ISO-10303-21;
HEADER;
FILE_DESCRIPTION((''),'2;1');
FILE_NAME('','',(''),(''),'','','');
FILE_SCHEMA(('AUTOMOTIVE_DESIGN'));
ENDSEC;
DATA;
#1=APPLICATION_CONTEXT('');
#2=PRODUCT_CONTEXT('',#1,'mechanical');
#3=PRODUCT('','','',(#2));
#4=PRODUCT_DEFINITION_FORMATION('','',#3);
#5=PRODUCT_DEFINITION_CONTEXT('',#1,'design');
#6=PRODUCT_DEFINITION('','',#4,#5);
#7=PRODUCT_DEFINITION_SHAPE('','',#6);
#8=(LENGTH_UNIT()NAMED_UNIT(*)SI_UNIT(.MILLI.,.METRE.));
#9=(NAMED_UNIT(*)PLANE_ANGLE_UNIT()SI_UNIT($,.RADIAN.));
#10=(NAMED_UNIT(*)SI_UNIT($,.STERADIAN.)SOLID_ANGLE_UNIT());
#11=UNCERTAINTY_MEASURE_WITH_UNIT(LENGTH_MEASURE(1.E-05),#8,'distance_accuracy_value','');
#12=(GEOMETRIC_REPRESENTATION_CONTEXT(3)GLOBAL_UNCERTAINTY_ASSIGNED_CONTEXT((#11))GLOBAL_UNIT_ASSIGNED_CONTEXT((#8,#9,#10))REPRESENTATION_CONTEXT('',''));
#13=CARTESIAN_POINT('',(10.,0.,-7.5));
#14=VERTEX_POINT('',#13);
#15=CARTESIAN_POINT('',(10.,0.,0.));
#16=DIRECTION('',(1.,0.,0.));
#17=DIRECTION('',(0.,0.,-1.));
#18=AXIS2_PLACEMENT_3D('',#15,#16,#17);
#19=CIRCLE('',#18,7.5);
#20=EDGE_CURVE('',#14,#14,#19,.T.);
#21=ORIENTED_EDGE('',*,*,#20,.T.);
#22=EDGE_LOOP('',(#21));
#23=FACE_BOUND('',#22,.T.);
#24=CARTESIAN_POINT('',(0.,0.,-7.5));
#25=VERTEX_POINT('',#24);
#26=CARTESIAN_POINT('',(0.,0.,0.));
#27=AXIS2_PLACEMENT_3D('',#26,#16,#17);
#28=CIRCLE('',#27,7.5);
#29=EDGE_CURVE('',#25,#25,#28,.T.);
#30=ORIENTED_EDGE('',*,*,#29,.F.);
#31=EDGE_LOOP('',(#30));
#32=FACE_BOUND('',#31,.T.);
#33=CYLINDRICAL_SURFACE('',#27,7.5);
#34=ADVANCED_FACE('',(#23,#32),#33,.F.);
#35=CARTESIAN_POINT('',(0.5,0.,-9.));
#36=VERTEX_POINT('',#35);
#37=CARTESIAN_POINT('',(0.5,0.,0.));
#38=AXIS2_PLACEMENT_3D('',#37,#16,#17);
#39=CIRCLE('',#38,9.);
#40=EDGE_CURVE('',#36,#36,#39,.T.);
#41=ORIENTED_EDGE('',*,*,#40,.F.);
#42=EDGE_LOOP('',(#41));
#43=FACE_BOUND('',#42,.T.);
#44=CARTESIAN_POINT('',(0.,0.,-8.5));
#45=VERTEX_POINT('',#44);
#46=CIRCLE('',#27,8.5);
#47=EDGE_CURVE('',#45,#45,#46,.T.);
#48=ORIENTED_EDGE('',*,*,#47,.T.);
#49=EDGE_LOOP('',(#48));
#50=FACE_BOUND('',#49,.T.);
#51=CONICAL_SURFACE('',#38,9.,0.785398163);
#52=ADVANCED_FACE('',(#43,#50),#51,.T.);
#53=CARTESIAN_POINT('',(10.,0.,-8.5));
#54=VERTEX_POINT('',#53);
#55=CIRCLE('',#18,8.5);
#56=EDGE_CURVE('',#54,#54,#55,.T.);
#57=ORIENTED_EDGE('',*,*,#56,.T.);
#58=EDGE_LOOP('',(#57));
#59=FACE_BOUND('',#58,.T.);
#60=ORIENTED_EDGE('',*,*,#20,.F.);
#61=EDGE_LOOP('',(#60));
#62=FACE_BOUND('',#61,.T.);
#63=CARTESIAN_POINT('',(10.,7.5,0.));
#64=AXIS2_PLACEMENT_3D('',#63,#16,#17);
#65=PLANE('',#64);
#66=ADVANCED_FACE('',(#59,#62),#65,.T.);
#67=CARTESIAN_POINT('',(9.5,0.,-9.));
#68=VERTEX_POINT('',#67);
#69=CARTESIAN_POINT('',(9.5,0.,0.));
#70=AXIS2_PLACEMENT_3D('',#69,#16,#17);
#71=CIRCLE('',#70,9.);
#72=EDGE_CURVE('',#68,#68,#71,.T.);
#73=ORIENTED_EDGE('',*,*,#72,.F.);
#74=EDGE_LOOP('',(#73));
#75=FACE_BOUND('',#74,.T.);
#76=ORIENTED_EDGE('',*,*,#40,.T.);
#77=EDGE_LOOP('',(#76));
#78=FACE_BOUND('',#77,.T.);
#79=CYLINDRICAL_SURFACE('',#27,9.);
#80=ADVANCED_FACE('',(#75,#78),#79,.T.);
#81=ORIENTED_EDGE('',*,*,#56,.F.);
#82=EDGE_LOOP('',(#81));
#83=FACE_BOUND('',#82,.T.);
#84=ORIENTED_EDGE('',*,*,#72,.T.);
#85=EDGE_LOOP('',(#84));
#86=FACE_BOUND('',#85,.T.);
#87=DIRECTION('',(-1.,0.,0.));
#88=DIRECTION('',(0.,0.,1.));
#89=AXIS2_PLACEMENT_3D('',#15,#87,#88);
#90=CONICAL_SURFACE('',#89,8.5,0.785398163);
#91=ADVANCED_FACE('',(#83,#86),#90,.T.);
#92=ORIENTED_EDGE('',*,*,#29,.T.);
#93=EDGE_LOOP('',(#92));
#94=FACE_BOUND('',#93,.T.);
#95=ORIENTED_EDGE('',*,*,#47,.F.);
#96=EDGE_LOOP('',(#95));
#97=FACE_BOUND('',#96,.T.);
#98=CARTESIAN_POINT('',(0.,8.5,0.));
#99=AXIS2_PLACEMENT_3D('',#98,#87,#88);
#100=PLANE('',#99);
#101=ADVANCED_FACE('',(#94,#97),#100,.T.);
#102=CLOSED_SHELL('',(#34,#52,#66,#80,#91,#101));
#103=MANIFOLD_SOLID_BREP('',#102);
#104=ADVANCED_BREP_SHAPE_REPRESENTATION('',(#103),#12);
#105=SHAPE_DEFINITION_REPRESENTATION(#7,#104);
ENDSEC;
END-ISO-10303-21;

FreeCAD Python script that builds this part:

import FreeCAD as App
import Part
import Sketcher
from FreeCAD import Vector
Q = App.Units.Quantity

doc = App.newDocument("Part")
body = doc.addObject("PartDesign::Body", "Body")

# Sketch on XY plane
sketch1 = body.newObject("Sketcher::SketchObject", "Sketch")
sketch1.AttachmentSupport = (doc.getObject("XY_Plane"), [""])
sketch1.MapMode = "FlatFace"
sketch1.addGeometry([
    Part.LineSegment(Vector(0, 8.5, 0), Vector(0, 7.5, 0)),  # 0
    Part.LineSegment(Vector(0, 7.5, 0), Vector(10, 7.5, 0)),  # 1
    Part.LineSegment(Vector(10, 7.5, 0), Vector(10, 8.5, 0)),  # 2
    Part.LineSegment(Vector(10, 8.5, 0), Vector(9.5, 9, 0)),  # 3
    Part.LineSegment(Vector(9.5, 9, 0), Vector(0.5, 9, 0)),  # 4
    Part.LineSegment(Vector(0.5, 9, 0), Vector(0, 8.5, 0)),  # 5
], False)
sketch1.addConstraint([
    Sketcher.Constraint("Coincident", 0, 2, 1, 1),
    Sketcher.Constraint("Coincident", 1, 2, 2, 1),
    Sketcher.Constraint("Coincident", 2, 2, 3, 1),
    Sketcher.Constraint("Coincident", 3, 2, 4, 1),
    Sketcher.Constraint("Coincident", 4, 2, 5, 1),
    Sketcher.Constraint("Coincident", 5, 2, 0, 1),
    Sketcher.Constraint("Vertical", 0),
    Sketcher.Constraint("Horizontal", 1),
    Sketcher.Constraint("Vertical", 2),
    Sketcher.Constraint("Horizontal", 4),
    Sketcher.Constraint("PointOnObject", 0, 2, -2),
    Sketcher.Constraint("Perpendicular", 3, 5),
    Sketcher.Constraint("Horizontal", 2, 2, 5, 2),
    Sketcher.Constraint("Equal", 3, 5),
    Sketcher.Constraint("DistanceX", 1, 1, 1, 2, Q("10 mm")),
    Sketcher.Constraint("DistanceX", 4, 2, 4, 1, Q("9 mm")),
    Sketcher.Constraint("DistanceY", 0, 2, 0, 1, Q("1 mm")),
    Sketcher.Constraint("DistanceY", -1, 1, 3, 2, Q("9 mm")),
])
revolution = body.newObject("PartDesign::Revolution", "Revolution")
revolution.Profile = sketch1
revolution.ReferenceAxis = (sketch1, ["H_Axis"])
revolution.Angle = 360

doc.recompute()
